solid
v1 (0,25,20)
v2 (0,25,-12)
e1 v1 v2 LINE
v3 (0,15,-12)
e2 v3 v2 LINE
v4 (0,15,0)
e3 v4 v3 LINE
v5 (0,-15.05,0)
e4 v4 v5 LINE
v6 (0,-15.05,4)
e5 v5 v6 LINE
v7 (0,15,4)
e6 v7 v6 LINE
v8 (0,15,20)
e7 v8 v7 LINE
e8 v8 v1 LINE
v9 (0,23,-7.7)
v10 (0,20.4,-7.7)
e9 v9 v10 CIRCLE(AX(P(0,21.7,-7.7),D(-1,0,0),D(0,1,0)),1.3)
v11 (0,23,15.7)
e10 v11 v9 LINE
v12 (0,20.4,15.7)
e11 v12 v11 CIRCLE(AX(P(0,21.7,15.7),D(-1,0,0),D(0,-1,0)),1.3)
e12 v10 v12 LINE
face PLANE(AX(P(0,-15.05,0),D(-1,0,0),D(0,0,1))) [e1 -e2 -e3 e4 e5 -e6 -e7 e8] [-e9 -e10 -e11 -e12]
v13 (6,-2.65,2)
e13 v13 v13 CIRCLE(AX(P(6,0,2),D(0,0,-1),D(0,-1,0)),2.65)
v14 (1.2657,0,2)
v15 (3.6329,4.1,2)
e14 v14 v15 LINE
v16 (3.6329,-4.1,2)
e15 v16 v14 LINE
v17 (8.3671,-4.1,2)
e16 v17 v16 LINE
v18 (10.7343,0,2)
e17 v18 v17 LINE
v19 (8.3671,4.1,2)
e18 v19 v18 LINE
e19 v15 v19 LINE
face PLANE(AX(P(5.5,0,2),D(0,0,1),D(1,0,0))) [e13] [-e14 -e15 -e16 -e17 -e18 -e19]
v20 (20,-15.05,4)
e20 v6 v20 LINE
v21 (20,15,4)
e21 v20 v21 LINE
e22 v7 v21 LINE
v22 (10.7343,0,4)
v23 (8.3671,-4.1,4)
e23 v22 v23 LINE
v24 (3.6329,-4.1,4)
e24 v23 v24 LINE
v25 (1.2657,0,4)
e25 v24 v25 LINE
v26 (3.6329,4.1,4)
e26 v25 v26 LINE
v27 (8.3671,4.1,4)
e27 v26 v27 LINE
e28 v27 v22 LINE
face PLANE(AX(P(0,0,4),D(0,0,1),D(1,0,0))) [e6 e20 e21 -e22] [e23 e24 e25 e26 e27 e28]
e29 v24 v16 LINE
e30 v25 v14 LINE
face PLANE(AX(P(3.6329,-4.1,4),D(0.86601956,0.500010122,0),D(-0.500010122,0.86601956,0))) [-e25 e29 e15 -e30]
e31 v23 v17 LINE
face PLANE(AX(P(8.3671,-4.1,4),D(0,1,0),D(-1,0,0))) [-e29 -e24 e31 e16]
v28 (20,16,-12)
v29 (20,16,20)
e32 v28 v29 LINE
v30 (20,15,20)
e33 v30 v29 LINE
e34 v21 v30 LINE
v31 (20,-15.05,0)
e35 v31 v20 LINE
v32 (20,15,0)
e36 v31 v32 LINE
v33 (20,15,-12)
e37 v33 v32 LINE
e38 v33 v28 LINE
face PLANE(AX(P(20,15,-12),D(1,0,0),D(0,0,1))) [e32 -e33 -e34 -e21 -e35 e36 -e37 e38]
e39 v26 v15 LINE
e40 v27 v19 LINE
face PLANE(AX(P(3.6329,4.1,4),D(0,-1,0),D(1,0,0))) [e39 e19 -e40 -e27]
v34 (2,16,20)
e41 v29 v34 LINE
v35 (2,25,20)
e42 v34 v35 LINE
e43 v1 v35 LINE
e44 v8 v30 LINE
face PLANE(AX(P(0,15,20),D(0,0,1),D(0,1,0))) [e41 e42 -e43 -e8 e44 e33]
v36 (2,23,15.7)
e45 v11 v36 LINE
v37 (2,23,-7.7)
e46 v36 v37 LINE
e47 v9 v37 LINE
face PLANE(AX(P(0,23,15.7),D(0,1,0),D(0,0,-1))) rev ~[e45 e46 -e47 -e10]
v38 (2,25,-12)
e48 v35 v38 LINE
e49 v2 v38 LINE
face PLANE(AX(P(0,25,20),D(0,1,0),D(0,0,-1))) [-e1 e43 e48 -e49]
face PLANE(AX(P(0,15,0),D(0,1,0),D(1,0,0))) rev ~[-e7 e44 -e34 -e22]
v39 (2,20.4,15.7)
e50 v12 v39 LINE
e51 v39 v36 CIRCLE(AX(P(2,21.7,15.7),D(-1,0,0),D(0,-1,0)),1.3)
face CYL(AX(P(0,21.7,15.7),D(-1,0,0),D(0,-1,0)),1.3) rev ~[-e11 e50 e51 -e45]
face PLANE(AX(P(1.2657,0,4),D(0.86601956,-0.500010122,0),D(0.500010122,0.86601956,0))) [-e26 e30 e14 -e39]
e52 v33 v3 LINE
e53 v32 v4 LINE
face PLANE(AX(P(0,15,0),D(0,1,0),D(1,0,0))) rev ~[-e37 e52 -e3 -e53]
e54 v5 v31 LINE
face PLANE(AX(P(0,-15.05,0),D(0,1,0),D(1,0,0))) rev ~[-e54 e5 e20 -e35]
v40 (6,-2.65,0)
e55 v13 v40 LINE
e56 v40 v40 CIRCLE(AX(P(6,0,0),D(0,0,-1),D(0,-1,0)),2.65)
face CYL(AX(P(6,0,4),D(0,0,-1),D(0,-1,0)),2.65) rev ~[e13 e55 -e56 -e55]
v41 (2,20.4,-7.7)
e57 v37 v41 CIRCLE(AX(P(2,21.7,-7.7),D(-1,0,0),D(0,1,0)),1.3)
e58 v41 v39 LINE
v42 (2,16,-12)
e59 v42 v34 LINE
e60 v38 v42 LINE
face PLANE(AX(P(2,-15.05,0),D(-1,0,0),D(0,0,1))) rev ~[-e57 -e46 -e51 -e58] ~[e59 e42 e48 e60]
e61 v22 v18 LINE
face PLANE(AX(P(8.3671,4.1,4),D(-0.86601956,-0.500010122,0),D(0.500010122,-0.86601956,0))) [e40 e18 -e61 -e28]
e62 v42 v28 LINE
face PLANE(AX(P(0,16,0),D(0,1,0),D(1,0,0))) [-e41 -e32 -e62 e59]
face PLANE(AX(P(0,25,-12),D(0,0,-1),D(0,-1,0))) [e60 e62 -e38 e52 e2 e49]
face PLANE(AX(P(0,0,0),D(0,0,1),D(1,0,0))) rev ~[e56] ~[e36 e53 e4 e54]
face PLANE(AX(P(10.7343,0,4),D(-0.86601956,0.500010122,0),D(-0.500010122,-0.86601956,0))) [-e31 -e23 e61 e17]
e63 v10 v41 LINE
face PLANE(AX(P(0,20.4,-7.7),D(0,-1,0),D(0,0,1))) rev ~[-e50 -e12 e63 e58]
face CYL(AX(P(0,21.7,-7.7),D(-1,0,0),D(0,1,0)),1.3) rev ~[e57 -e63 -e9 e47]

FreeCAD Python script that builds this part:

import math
import FreeCAD as App
import Part
import Sketcher
from FreeCAD import Vector
Q = App.Units.Quantity

doc = App.newDocument("Part")
body = doc.addObject("PartDesign::Body", "Body")

# Sketch on XY plane
sketch1 = doc.addObject("Sketcher::SketchObject", "Sketch")
body.addObject(sketch1)
sketch1.AttachmentSupport = (doc.XY_Plane, [""])
sketch1.MapMode = "FlatFace"
sketch1.addGeometry([
    Part.LineSegment(Vector(0, 15, 0), Vector(0, -15.05, 0)),
    Part.LineSegment(Vector(0, -15.05, 0), Vector(20, -15.05, 0)),
    Part.LineSegment(Vector(20, -15.05, 0), Vector(20, 15, 0)),
    Part.LineSegment(Vector(20, 15, 0), Vector(0, 15, 0)),
], False)
sketch1.addConstraint([
    Sketcher.Constraint("Coincident", 0, 2, 1, 1),
    Sketcher.Constraint("Coincident", 1, 2, 2, 1),
    Sketcher.Constraint("Coincident", 2, 2, 3, 1),
    Sketcher.Constraint("Coincident", 3, 2, 0, 1),
    Sketcher.Constraint("Vertical", 0),
    Sketcher.Constraint("Horizontal", 1),
    Sketcher.Constraint("Vertical", 2),
    Sketcher.Constraint("Horizontal", 3),
    Sketcher.Constraint("PointOnObject", 0, 2, -2),
    Sketcher.Constraint("DistanceX", 1, 1, 1, 2, Q("20 mm")),
    Sketcher.Constraint("DistanceY", -1, 1, 2, 2, Q("15 mm")),
    Sketcher.Constraint("DistanceY", 0, 2, 0, 1, Q("30.05 mm")),
])
pad1 = doc.addObject("PartDesign::Pad", "Pad")
body.addObject(pad1)
pad1.Profile = sketch1
pad1.Length = 4

# Sketch on XY plane
sketch2 = doc.addObject("Sketcher::SketchObject", "Sketch001")
body.addObject(sketch2)
sketch2.AttachmentSupport = (doc.XY_Plane, [""])
sketch2.MapMode = "FlatFace"
sketch2.AttachmentOffset = App.Placement(Vector(0, 0, 4), App.Rotation())
sketch2.addGeometry(Part.Circle(Vector(6, 0, 0), Vector(0, 0, 1), 2.65), False)
sketch2.addConstraint([
    Sketcher.Constraint("PointOnObject", 0, 3, -1),
    Sketcher.Constraint("Diameter", 0, Q("5.3 mm")),
    Sketcher.Constraint("DistanceX", -1, 1, 0, 3, Q("6 mm")),
])
doc.recompute()
hole = doc.addObject("PartDesign::Hole", "Hole")
body.addObject(hole)
hole.Profile = sketch2
hole.ThreadType = "None"
hole.Diameter = 5.3
hole.DepthType = "ThroughAll"

# Sketch on XZ plane
sketch3 = doc.addObject("Sketcher::SketchObject", "Sketch002")
body.addObject(sketch3)
sketch3.AttachmentSupport = (doc.XZ_Plane, [""])
sketch3.MapMode = "FlatFace"
sketch3.AttachmentOffset = App.Placement(Vector(0, 0, -15), App.Rotation())
sketch3.addGeometry([
    Part.LineSegment(Vector(20, -12, 0), Vector(0, -12, 0)),
    Part.LineSegment(Vector(0, -12, 0), Vector(0, 20, 0)),
    Part.LineSegment(Vector(0, 20, 0), Vector(20, 20, 0)),
    Part.LineSegment(Vector(20, 20, 0), Vector(20, -12, 0)),
], False)
sketch3.addConstraint([
    Sketcher.Constraint("Coincident", 0, 2, 1, 1),
    Sketcher.Constraint("Coincident", 1, 2, 2, 1),
    Sketcher.Constraint("Coincident", 2, 2, 3, 1),
    Sketcher.Constraint("Coincident", 3, 2, 0, 1),
    Sketcher.Constraint("Horizontal", 0),
    Sketcher.Constraint("Vertical", 1),
    Sketcher.Constraint("Horizontal", 2),
    Sketcher.Constraint("Vertical", 3),
    Sketcher.Constraint("PointOnObject", 0, 2, -2),
    Sketcher.Constraint("DistanceX", 0, 2, 0, 1, Q("20 mm")),
    Sketcher.Constraint("DistanceY", 0, 2, -1, 1, Q("12 mm")),
    Sketcher.Constraint("DistanceY", -1, 1, 1, 2, Q("20 mm")),
])
pad2 = doc.addObject("PartDesign::Pad", "Pad001")
body.addObject(pad2)
pad2.Profile = sketch3
pad2.Length = 1
pad2.Reversed = True

# Sketch on YZ plane
sketch4 = doc.addObject("Sketcher::SketchObject", "Sketch003")
body.addObject(sketch4)
sketch4.AttachmentSupport = (doc.YZ_Plane, [""])
sketch4.MapMode = "FlatFace"
sketch4.addGeometry([
    Part.LineSegment(Vector(25, -12, 0), Vector(15, -12, 0)),
    Part.LineSegment(Vector(15, -12, 0), Vector(15, 20, 0)),
    Part.LineSegment(Vector(15, 20, 0), Vector(25, 20, 0)),
    Part.LineSegment(Vector(25, 20, 0), Vector(25, -12, 0)),
], False)
sketch4.addConstraint([
    Sketcher.Constraint("Coincident", 0, 2, 1, 1),
    Sketcher.Constraint("Coincident", 1, 2, 2, 1),
    Sketcher.Constraint("Coincident", 2, 2, 3, 1),
    Sketcher.Constraint("Coincident", 3, 2, 0, 1),
    Sketcher.Constraint("Horizontal", 0),
    Sketcher.Constraint("Vertical", 1),
    Sketcher.Constraint("Horizontal", 2),
    Sketcher.Constraint("Vertical", 3),
    Sketcher.Constraint("DistanceX", 0, 2, 0, 1, Q("10 mm")),
    Sketcher.Constraint("DistanceY", 1, 1, 1, 2, Q("32 mm")),
    Sketcher.Constraint("DistanceX", -1, 1, 0, 2, Q("15 mm")),
    Sketcher.Constraint("DistanceY", 0, 2, -1, 1, Q("12 mm")),
])
pad3 = doc.addObject("PartDesign::Pad", "Pad002")
body.addObject(pad3)
pad3.Profile = sketch4
pad3.Length = 2

# Sketch on XY plane
sketch5 = doc.addObject("Sketcher::SketchObject", "Sketch004")
body.addObject(sketch5)
sketch5.AttachmentSupport = (doc.XY_Plane, [""])
sketch5.MapMode = "FlatFace"
sketch5.AttachmentOffset = App.Placement(Vector(0, 0, 4), App.Rotation())
sketch5.addGeometry([
    Part.LineSegment(Vector(8.3671, 4.1, 0), Vector(3.6329, 4.1, 0)),  # 0
    Part.LineSegment(Vector(3.6329, 4.1, 0), Vector(1.2657, 0, 0)),  # 1
    Part.LineSegment(Vector(1.2657, 0, 0), Vector(3.6329, -4.1, 0)),  # 2
    Part.LineSegment(Vector(3.6329, -4.1, 0), Vector(8.3671, -4.1, 0)),  # 3
    Part.LineSegment(Vector(8.3671, -4.1, 0), Vector(10.7343, 0, 0)),  # 4
    Part.LineSegment(Vector(10.7343, 0, 0), Vector(8.3671, 4.1, 0)),  # 5
], False)
sketch5.addConstraint([
    Sketcher.Constraint("Coincident", 0, 2, 1, 1),
    Sketcher.Constraint("Coincident", 1, 2, 2, 1),
    Sketcher.Constraint("Coincident", 2, 2, 3, 1),
    Sketcher.Constraint("Coincident", 3, 2, 4, 1),
    Sketcher.Constraint("Coincident", 4, 2, 5, 1),
    Sketcher.Constraint("Coincident", 5, 2, 0, 1),
    Sketcher.Constraint("Horizontal", 0),
    Sketcher.Constraint("Horizontal", 3),
    Sketcher.Constraint("Symmetric", 0, 2, 2, 2, -1),
    Sketcher.Constraint("PointOnObject", 1, 2, -1),
    Sketcher.Constraint("PointOnObject", 4, 2, -1),
    Sketcher.Constraint("Parallel", 1, 4),
    Sketcher.Constraint("Parallel", 2, 5),
    Sketcher.Constraint("DistanceY", 2, 2, 0, 2, Q("8.2 mm")),
    Sketcher.Constraint("Angle", 1, Q("-120.0007 deg")),
    Sketcher.Constraint("DistanceX", 0, 2, 0, 1, Q("4.7342 mm")),
    Sketcher.Constraint("DistanceX", -1, 1, 0, 2, Q("3.633 mm")),
])
pocket1 = doc.addObject("PartDesign::Pocket", "Pocket")
body.addObject(pocket1)
pocket1.Profile = sketch5
pocket1.Length = 2

# Sketch on YZ plane
sketch6 = doc.addObject("Sketcher::SketchObject", "Sketch005")
body.addObject(sketch6)
sketch6.AttachmentSupport = (doc.YZ_Plane, [""])
sketch6.MapMode = "FlatFace"
sketch6.addGeometry([
    Part.ArcOfCircle(Part.Circle(Vector(21.7, -7.7, 0), Vector(0, 0, 1), 1.3), math.radians(180), math.radians(360)),
    Part.LineSegment(Vector(20.4, -7.7, 0), Vector(20.4, 15.7, 0)),
    Part.ArcOfCircle(Part.Circle(Vector(21.7, 15.7, 0), Vector(0, 0, 1), 1.3), math.radians(0), math.radians(180)),
    Part.LineSegment(Vector(23, 15.7, 0), Vector(23, -7.7, 0)),
], False)
sketch6.addConstraint([
    Sketcher.Constraint("Tangent", 0, 1, 1, 1),
    Sketcher.Constraint("Tangent", 1, 2, 2, 2),
    Sketcher.Constraint("Tangent", 2, 1, 3, 1),
    Sketcher.Constraint("Tangent", 3, 2, 0, 2),
    Sketcher.Constraint("Vertical", 1),
    Sketcher.Constraint("Vertical", 3),
    Sketcher.Constraint("Radius", 0, Q("1.3 mm")),
    Sketcher.Constraint("DistanceY", 1, 1, 1, 2, Q("23.4 mm")),
    Sketcher.Constraint("DistanceX", -1, 1, 2, 1, Q("23 mm")),
    Sketcher.Constraint("DistanceY", 0, 3, -1, 1, Q("7.7 mm")),
])
pocket2 = doc.addObject("PartDesign::Pocket", "Pocket001")
body.addObject(pocket2)
pocket2.Profile = sketch6
pocket2.Type = "ThroughAll"
pocket2.Reversed = True

doc.recompute()
